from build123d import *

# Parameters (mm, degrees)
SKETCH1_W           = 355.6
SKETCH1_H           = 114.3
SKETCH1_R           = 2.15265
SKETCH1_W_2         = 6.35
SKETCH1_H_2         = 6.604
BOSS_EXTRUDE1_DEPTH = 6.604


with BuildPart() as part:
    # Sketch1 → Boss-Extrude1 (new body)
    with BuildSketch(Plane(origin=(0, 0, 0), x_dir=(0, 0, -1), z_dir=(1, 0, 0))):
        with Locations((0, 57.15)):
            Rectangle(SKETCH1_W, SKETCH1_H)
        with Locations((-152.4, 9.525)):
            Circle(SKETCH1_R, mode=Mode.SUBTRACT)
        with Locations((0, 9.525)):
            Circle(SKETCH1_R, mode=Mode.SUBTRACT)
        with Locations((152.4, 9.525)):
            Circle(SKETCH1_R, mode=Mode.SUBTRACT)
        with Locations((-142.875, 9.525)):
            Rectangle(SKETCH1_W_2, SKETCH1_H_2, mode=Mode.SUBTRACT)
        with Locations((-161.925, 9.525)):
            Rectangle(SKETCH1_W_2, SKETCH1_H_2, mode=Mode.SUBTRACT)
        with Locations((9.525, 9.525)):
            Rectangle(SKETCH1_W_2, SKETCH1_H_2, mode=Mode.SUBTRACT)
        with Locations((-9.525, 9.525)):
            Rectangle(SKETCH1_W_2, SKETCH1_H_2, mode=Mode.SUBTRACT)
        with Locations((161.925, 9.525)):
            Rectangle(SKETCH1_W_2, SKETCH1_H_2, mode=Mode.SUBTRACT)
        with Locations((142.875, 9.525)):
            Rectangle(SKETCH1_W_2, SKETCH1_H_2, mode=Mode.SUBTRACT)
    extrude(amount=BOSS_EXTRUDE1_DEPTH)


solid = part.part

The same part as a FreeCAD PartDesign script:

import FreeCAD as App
import Part
import Sketcher
Q = App.Units.Quantity


def add_polygon(sketch, points):
    """Adds a closed chain of lines whose ends are joined by coincident constraints."""
    first, n = sketch.GeometryCount, len(points)
    for a, b in zip(points, points[1:] + points[:1]):
        sketch.addGeometry(Part.LineSegment(App.Vector(*a, 0), App.Vector(*b, 0)), False)
    for i in range(n):
        sketch.addConstraint(Sketcher.Constraint("Coincident", first + i, 2, first + (i + 1) % n, 1))

doc = App.newDocument("Part")
params = doc.addObject("Spreadsheet::Sheet", "Params")
for row, (alias, value) in enumerate([
    ("sketch1_height", "14 in"),
    ("sketch1_width", "4.5 in"),
    ("sketch1_width2", "0.26 in"),
    ("sketch1_height2", "0.25 in"),
    ("pad1_length", "0.26 in"),
], start=1):
    params.set(f"A{row}", alias)
    params.set(f"B{row}", "=" + value)
    params.setAlias(f"B{row}", alias)

body = doc.addObject("PartDesign::Body", "Body")

# Sketch on YZ plane
sketch1 = doc.addObject("Sketcher::SketchObject", "Sketch")
body.addObject(sketch1)
sketch1.AttachmentSupport = (doc.YZ_Plane, [""])
sketch1.MapMode = "FlatFace"
add_polygon(sketch1, [(114.3, 177.8), (0, 177.8), (0, -177.8), (114.3, -177.8)])  # lines 0-3
add_polygon(sketch1, [(6.223, 158.75), (6.223, 165.1), (12.827, 165.1), (12.827, 158.75)])  # lines 4-7
sketch1.addGeometry(Part.Circle(App.Vector(9.525, 152.4, 0), App.Vector(0, 0, 1), 2.15265), False)  # 8
add_polygon(sketch1, [(6.223, 139.7), (6.223, 146.05), (12.827, 146.05), (12.827, 139.7)])  # lines 9-12
add_polygon(sketch1, [(6.223, 6.35), (6.223, 12.7), (12.827, 12.7), (12.827, 6.35)])  # lines 13-16
sketch1.addGeometry(Part.Circle(App.Vector(9.525, 0, 0), App.Vector(0, 0, 1), 2.15265), False)  # 17
add_polygon(sketch1, [(6.223, -12.7), (6.223, -6.35), (12.827, -6.35), (12.827, -12.7)])  # lines 18-21
add_polygon(sketch1, [(6.223, -146.05), (6.223, -139.7), (12.827, -139.7), (12.827, -146.05)])  # lines 22-25
sketch1.addGeometry(Part.Circle(App.Vector(9.525, -152.4, 0), App.Vector(0, 0, 1), 2.15265), False)  # 26
add_polygon(sketch1, [(6.223, -165.1), (6.223, -158.75), (12.827, -158.75), (12.827, -165.1)])  # lines 27-30
sketch1.addConstraint([
    Sketcher.Constraint("Horizontal", 0),
    Sketcher.Constraint("Vertical", 1),
    Sketcher.Constraint("Horizontal", 2),
    Sketcher.Constraint("Vertical", 3),
    Sketcher.Constraint("Vertical", 4),
    Sketcher.Constraint("Horizontal", 5),
    Sketcher.Constraint("Vertical", 6),
    Sketcher.Constraint("Horizontal", 7),
    Sketcher.Constraint("Vertical", 9),
    Sketcher.Constraint("Horizontal", 10),
    Sketcher.Constraint("Vertical", 11),
    Sketcher.Constraint("Horizontal", 12),
    Sketcher.Constraint("Vertical", 13),
    Sketcher.Constraint("Horizontal", 14),
    Sketcher.Constraint("Vertical", 15),
    Sketcher.Constraint("Horizontal", 16),
    Sketcher.Constraint("Vertical", 18),
    Sketcher.Constraint("Horizontal", 19),
    Sketcher.Constraint("Vertical", 20),
    Sketcher.Constraint("Horizontal", 21),
    Sketcher.Constraint("Vertical", 22),
    Sketcher.Constraint("Horizontal", 23),
    Sketcher.Constraint("Vertical", 24),
    Sketcher.Constraint("Horizontal", 25),
    Sketcher.Constraint("Vertical", 27),
    Sketcher.Constraint("Horizontal", 28),
    Sketcher.Constraint("Vertical", 29),
    Sketcher.Constraint("Horizontal", 30),
    Sketcher.Constraint("Equal", 8, 17),
    Sketcher.Constraint("Equal", 17, 26),
    Sketcher.Constraint("Symmetric", 0, 2, 1, 2, -1, 1),
    Sketcher.Constraint("Symmetric", 8, 3, 26, 3, -1),
    Sketcher.Constraint("Symmetric", 16, 2, 18, 2, -1),
    Sketcher.Constraint("Symmetric", 14, 2, 20, 2, -1),
    Sketcher.Constraint("Symmetric", 12, 2, 22, 2, -1),
    Sketcher.Constraint("Symmetric", 10, 2, 24, 2, -1),
    Sketcher.Constraint("Symmetric", 7, 2, 27, 2, -1),
    Sketcher.Constraint("Symmetric", 5, 2, 29, 2, -1),
    Sketcher.Constraint("PointOnObject", 17, 3, -1),
    Sketcher.Constraint("Vertical", 8, 3, 17, 3),
    Sketcher.Constraint("Vertical", 7, 2, 9, 2),
    Sketcher.Constraint("Vertical", 6, 2, 10, 2),
    Sketcher.Constraint("Vertical", 12, 2, 13, 2),
    Sketcher.Constraint("Vertical", 11, 2, 14, 2),
    Sketcher.Constraint("Equal", 6, 9),
    Sketcher.Constraint("Equal", 11, 13),
    Sketcher.Constraint("DistanceY", 1, 2, 1, 1, Q("14 in")),
    Sketcher.Constraint("DistanceX", 0, 2, 0, 1, Q("4.5 in")),
    Sketcher.Constraint("DistanceY", -1, 1, 8, 3, Q("6 in")),
    Sketcher.Constraint("DistanceY", 13, 2, 12, 2, Q("5 in")),
    Sketcher.Constraint("Diameter", 8, Q("0.1695 in")),
    Sketcher.Constraint("DistanceX", 5, 1, 5, 2, Q("0.26 in")),
    Sketcher.Constraint("DistanceY", 4, 1, 4, 2, Q("0.25 in")),
    Sketcher.Constraint("DistanceY", -1, 1, 4, 2, Q("6.5 in")),
    Sketcher.Constraint("DistanceY", -1, 1, 11, 2, Q("5.5 in")),
    Sketcher.Constraint("DistanceX", 4, 2, 8, 3, Q("0.13 in")),
    Sketcher.Constraint("DistanceX", -1, 1, 8, 3, Q("0.375 in")),
])
sketch1.setExpression("Constraints[74]", "Params.sketch1_height")
sketch1.setExpression("Constraints[75]", "Params.sketch1_width")
sketch1.setExpression("Constraints[79]", "Params.sketch1_width2")
sketch1.setExpression("Constraints[80]", "Params.sketch1_height2")
pad1 = doc.addObject("PartDesign::Pad", "Pad")
body.addObject(pad1)
pad1.Profile = sketch1
pad1.setExpression("Length", "Params.pad1_length")

doc.recompute()
